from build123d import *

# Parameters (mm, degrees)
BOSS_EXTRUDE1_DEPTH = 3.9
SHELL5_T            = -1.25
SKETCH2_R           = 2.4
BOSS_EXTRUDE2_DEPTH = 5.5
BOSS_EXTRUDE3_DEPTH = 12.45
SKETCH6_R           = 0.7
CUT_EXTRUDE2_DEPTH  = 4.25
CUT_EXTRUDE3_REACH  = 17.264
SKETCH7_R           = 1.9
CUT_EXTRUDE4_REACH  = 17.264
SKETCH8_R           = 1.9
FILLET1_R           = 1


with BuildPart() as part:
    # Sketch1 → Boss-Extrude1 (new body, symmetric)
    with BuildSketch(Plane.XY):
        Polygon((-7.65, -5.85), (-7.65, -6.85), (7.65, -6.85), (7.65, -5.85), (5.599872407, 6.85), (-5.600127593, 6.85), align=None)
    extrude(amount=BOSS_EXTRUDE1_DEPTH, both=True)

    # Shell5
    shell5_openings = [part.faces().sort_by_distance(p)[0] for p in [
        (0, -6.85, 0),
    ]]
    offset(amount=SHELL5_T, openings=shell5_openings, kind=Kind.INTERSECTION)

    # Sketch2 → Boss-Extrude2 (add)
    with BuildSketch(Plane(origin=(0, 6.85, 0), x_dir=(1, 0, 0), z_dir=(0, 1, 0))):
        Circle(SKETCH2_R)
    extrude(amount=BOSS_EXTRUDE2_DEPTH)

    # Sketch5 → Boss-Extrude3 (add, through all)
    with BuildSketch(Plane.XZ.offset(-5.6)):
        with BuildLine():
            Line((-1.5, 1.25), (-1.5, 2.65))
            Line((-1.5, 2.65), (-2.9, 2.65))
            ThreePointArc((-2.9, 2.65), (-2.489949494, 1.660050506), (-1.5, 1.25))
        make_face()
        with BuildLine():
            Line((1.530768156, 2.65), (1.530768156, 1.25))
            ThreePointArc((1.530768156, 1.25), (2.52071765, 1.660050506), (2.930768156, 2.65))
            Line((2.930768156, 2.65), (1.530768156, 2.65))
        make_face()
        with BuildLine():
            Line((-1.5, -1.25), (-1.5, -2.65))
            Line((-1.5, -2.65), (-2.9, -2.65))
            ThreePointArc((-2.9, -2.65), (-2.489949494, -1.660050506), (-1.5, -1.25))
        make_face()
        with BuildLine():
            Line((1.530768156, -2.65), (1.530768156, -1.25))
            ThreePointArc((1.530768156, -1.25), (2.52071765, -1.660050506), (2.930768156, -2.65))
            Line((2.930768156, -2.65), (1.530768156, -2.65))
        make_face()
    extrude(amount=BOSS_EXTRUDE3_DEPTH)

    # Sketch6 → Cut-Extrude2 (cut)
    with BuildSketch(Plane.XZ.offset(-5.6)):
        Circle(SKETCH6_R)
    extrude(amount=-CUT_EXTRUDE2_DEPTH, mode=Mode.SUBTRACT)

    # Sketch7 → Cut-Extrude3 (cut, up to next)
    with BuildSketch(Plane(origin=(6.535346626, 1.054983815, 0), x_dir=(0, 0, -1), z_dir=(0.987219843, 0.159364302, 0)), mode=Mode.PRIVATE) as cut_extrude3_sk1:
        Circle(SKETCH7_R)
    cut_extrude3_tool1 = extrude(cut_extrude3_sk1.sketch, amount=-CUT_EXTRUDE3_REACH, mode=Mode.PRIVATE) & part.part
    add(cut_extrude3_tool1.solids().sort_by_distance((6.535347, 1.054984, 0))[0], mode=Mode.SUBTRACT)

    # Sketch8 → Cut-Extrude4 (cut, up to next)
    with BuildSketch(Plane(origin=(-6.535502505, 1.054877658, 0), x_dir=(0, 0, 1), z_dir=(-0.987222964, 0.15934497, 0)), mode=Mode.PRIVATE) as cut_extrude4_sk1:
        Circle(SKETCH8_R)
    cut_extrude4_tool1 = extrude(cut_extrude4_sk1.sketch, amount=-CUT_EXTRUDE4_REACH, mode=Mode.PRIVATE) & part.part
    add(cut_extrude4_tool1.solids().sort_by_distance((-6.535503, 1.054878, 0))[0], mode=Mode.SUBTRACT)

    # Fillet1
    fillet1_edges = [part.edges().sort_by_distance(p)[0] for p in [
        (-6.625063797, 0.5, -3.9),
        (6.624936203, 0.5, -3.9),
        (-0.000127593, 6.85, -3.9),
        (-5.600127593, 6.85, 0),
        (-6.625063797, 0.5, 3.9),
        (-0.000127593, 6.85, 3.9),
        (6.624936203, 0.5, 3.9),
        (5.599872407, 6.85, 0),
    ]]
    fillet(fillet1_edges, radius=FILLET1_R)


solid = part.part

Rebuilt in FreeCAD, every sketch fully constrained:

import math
import FreeCAD as App
import Part
import Sketcher
from FreeCAD import Vector
Q = App.Units.Quantity


def edges_at(feature, points):
    """Names of the edges that pass closest to the given points."""
    edges = feature.Shape.Edges
    near = lambda p: min(range(len(edges)), key=lambda i: edges[i].distToShape(Part.Vertex(*p))[0])
    return sorted({f"Edge{near(p) + 1}" for p in points})


def faces_at(feature, points):
    """Names of the faces that lie closest to the given points."""
    faces = feature.Shape.Faces
    near = lambda p: min(range(len(faces)), key=lambda i: faces[i].distToShape(Part.Vertex(*p))[0])
    return sorted({f"Face{near(p) + 1}" for p in points})


def add_polygon(sketch, points):
    """Adds a closed chain of lines whose ends are joined by coincident constraints."""
    first, n = sketch.GeometryCount, len(points)
    for a, b in zip(points, points[1:] + points[:1]):
        sketch.addGeometry(Part.LineSegment(App.Vector(*a, 0), App.Vector(*b, 0)), False)
    for i in range(n):
        sketch.addConstraint(Sketcher.Constraint("Coincident", first + i, 2, first + (i + 1) % n, 1))

doc = App.newDocument("Part")
params = doc.addObject("Spreadsheet::Sheet", "Params")
for row, (alias, value) in enumerate([
    ("sketch1_height", "1 mm"),
    ("sketch1_width", "15.3 mm"),
    ("sketch1_width2", "11.2 mm"),
    ("pad1_length", "7.8 mm"),
    ("thickness_wall", "1.25 mm"),
    ("sketch2_diameter", "4.8 mm"),
    ("pad2_length", "5.5 mm"),
    ("sketch3_radius", "1.4 mm"),
    ("pad3_length", "12.45 mm"),
    ("sketch4_diameter", "1.4 mm"),
    ("pocket1_length", "4.25 mm"),
    ("sketch5_diameter", "3.8 mm"),
    ("sketch6_diameter", "3.8 mm"),
    ("fillet_radius", "1 mm"),
], start=1):
    params.set(f"A{row}", alias)
    params.set(f"B{row}", "=" + value)
    params.setAlias(f"B{row}", alias)

body = doc.addObject("PartDesign::Body", "Body")

# Sketch on XY plane
sketch1 = body.newObject("Sketcher::SketchObject", "Sketch")
sketch1.AttachmentSupport = (doc.getObject("XY_Plane"), [""])
sketch1.MapMode = "FlatFace"
add_polygon(sketch1, [(-7.7, -5.8), (-7.7, -6.8), (7.7, -6.8), (7.7, -5.8), (5.6, 6.8), (-5.6, 6.8)])  # lines 0-5
sketch1.addConstraint([
    Sketcher.Constraint("Vertical", 0),
    Sketcher.Constraint("Horizontal", 1),
    Sketcher.Constraint("Vertical", 2),
    Sketcher.Constraint("Horizontal", 4),
    Sketcher.Constraint("Symmetric", 2, 2, 5, 2, -2),
    Sketcher.Constraint("DistanceY", 0, 2, 0, 1, 1.0),
    Sketcher.Constraint("DistanceX", 1, 1, 1, 2, 15.3),
    Sketcher.Constraint("DistanceX", 4, 2, 4, 1, 11.2),
    Sketcher.Constraint("Angle", 3, Q("99.17 deg")),
    Sketcher.Constraint("DistanceY", 2, 2, 3, 2, 12.7),
    Sketcher.Constraint("DistanceY", 0, 2, -1, 1, 6.85),
])
sketch1.setExpression("Constraints[11]", "Params.sketch1_height")
sketch1.setExpression("Constraints[12]", "Params.sketch1_width")
sketch1.setExpression("Constraints[13]", "Params.sketch1_width2")
pad1 = body.newObject("PartDesign::Pad", "Pad")
pad1.Profile = sketch1
pad1.setExpression("Length", "Params.pad1_length")
pad1.Midplane = True
doc.recompute()

thickness = body.newObject("PartDesign::Thickness", "Thickness")
thickness.Base = (pad1, faces_at(pad1, [(0, -6.85, 0)]))
thickness.setExpression("Value", "Params.thickness_wall")
thickness.Reversed = True
thickness.Join = "Intersection"

# Sketch on XZ plane
sketch2 = body.newObject("Sketcher::SketchObject", "Sketch001")
sketch2.AttachmentSupport = (doc.getObject("XZ_Plane"), [""])
sketch2.MapMode = "FlatFace"
sketch2.AttachmentOffset = App.Placement(Vector(0, 0, -6.85), App.Rotation())
sketch2.addGeometry(Part.Circle(Vector(0, 0, 0), Vector(0, 0, 1), 2.4), False)
sketch2.addConstraint([
    Sketcher.Constraint("Coincident", 0, 3, -1, 1),
    Sketcher.Constraint("Diameter", 0, 4.8),
])
sketch2.setExpression("Constraints[1]", "Params.sketch2_diameter")
pad2 = body.newObject("PartDesign::Pad", "Pad001")
pad2.Profile = sketch2
pad2.setExpression("Length", "Params.pad2_length")
pad2.Reversed = True

# Sketch on XZ plane
sketch3 = body.newObject("Sketcher::SketchObject", "Sketch002")
sketch3.AttachmentSupport = (doc.getObject("XZ_Plane"), [""])
sketch3.MapMode = "FlatFace"
sketch3.AttachmentOffset = App.Placement(Vector(0, 0, -5.6), App.Rotation())
sketch3.addGeometry([
    Part.LineSegment(Vector(-1.5, 1.2, 0), Vector(-1.5, 2.6, 0)),  # 0
    Part.LineSegment(Vector(-1.5, 2.6, 0), Vector(-2.9, 2.6, 0)),  # 1
    Part.ArcOfCircle(Part.Circle(Vector(-1.5, 2.6, 0), Vector(0, 0, 1), 1.4), math.radians(180), math.radians(270)),  # 2
    Part.LineSegment(Vector(1.5, 2.6, 0), Vector(1.5, 1.2, 0)),  # 3
    Part.ArcOfCircle(Part.Circle(Vector(1.5, 2.6, 0), Vector(0, 0, 1), 1.4), math.radians(-90), math.radians(0)),  # 4
    Part.LineSegment(Vector(2.9, 2.6, 0), Vector(1.5, 2.6, 0)),  # 5
    Part.LineSegment(Vector(-1.5, -2.6, 0), Vector(-1.5, -1.2, 0)),  # 6
    Part.ArcOfCircle(Part.Circle(Vector(-1.5, -2.6, 0), Vector(0, 0, 1), 1.4), math.radians(90), math.radians(180)),  # 7
    Part.LineSegment(Vector(-2.9, -2.6, 0), Vector(-1.5, -2.6, 0)),  # 8
    Part.LineSegment(Vector(1.5, -1.2, 0), Vector(1.5, -2.6, 0)),  # 9
    Part.LineSegment(Vector(1.5, -2.6, 0), Vector(2.9, -2.6, 0)),  # 10
    Part.ArcOfCircle(Part.Circle(Vector(1.5, -2.6, 0), Vector(0, 0, 1), 1.4), math.radians(0), math.radians(90)),  # 11
], False)
sketch3.addConstraint([
    Sketcher.Constraint("Coincident", 0, 2, 1, 1),
    Sketcher.Constraint("Coincident", 1, 2, 2, 1),
    Sketcher.Constraint("Coincident", 2, 2, 0, 1),
    Sketcher.Constraint("Coincident", 3, 2, 4, 1),
    Sketcher.Constraint("Coincident", 4, 2, 5, 1),
    Sketcher.Constraint("Coincident", 5, 2, 3, 1),
    Sketcher.Constraint("Coincident", 6, 2, 7, 1),
    Sketcher.Constraint("Coincident", 7, 2, 8, 1),
    Sketcher.Constraint("Coincident", 8, 2, 6, 1),
    Sketcher.Constraint("Coincident", 9, 2, 10, 1),
    Sketcher.Constraint("Coincident", 10, 2, 11, 1),
    Sketcher.Constraint("Coincident", 11, 2, 9, 1),
    Sketcher.Constraint("Vertical", 0),
    Sketcher.Constraint("Horizontal", 1),
    Sketcher.Constraint("Vertical", 3),
    Sketcher.Constraint("Horizontal", 5),
    Sketcher.Constraint("Vertical", 6),
    Sketcher.Constraint("Horizontal", 8),
    Sketcher.Constraint("Vertical", 9),
    Sketcher.Constraint("Horizontal", 10),
    Sketcher.Constraint("Coincident", 0, 2, 2, 3),
    Sketcher.Constraint("Coincident", 5, 2, 4, 3),
    Sketcher.Constraint("Coincident", 8, 2, 7, 3),
    Sketcher.Constraint("Coincident", 9, 2, 11, 3),
    Sketcher.Constraint("Equal", 2, 4),
    Sketcher.Constraint("Equal", 4, 7),
    Sketcher.Constraint("Equal", 7, 11),
    Sketcher.Constraint("Symmetric", 2, 3, 7, 3, -1),
    Sketcher.Constraint("Symmetric", 4, 3, 11, 3, -1),
    Sketcher.Constraint("Horizontal", 2, 3, 4, 3),
    Sketcher.Constraint("Radius", 2, 1.4),
    Sketcher.Constraint("DistanceX", 2, 3, -1, 1, 1.5),
    Sketcher.Constraint("DistanceY", 7, 3, 2, 3, 5.3),
    Sketcher.Constraint("DistanceX", -1, 1, 4, 3, 1.530768),
])
sketch3.setExpression("Constraints[30]", "Params.sketch3_radius")
pad3 = body.newObject("PartDesign::Pad", "Pad002")
pad3.Profile = sketch3
pad3.setExpression("Length", "Params.pad3_length")

# Sketch on XZ plane
sketch4 = body.newObject("Sketcher::SketchObject", "Sketch003")
sketch4.AttachmentSupport = (doc.getObject("XZ_Plane"), [""])
sketch4.MapMode = "FlatFace"
sketch4.AttachmentOffset = App.Placement(Vector(0, 0, -5.6), App.Rotation())
sketch4.addGeometry(Part.Circle(Vector(0, 0, 0), Vector(0, 0, 1), 0.7), False)
sketch4.addConstraint([
    Sketcher.Constraint("Coincident", 0, 3, -1, 1),
    Sketcher.Constraint("Diameter", 0, 1.4),
])
sketch4.setExpression("Constraints[1]", "Params.sketch4_diameter")
pocket1 = body.newObject("PartDesign::Pocket", "Pocket")
pocket1.Profile = sketch4
pocket1.setExpression("Length", "Params.pocket1_length")

# Sketch on an angled plane
sketch5 = body.newObject("Sketcher::SketchObject", "Sketch004")
sketch5.Placement = App.Placement(Vector(6.535347, 1.054984, 0), App.Rotation(Vector(0, 0, -1), Vector(-0.159364302, 0.987219843, 0), Vector(0.987219843, 0.159364302, 0), "ZXY"))
sketch5.addGeometry(Part.Circle(Vector(0, 0, 0), Vector(0, 0, 1), 1.9), False)
sketch5.addConstraint([
    Sketcher.Constraint("Coincident", 0, 3, -1, 1),
    Sketcher.Constraint("Diameter", 0, 3.8),
])
sketch5.setExpression("Constraints[1]", "Params.sketch5_diameter")
pocket2 = body.newObject("PartDesign::Pocket", "Pocket001")
pocket2.Profile = sketch5
pocket2.Type = "UpToFirst"

# Sketch on an angled plane
sketch6 = body.newObject("Sketcher::SketchObject", "Sketch005")
sketch6.Placement = App.Placement(Vector(-6.535503, 1.054878, 0), App.Rotation(Vector(0, 0, 1), Vector(0.15934497, 0.987222964, 0), Vector(-0.987222964, 0.15934497, 0), "ZXY"))
sketch6.addGeometry(Part.Circle(Vector(0, 0, 0), Vector(0, 0, 1), 1.9), False)
sketch6.addConstraint([
    Sketcher.Constraint("Coincident", 0, 3, -1, 1),
    Sketcher.Constraint("Diameter", 0, 3.8),
])
sketch6.setExpression("Constraints[1]", "Params.sketch6_diameter")
pocket3 = body.newObject("PartDesign::Pocket", "Pocket002")
pocket3.Profile = sketch6
pocket3.Type = "UpToFirst"
doc.recompute()

fillet = body.newObject("PartDesign::Fillet", "Fillet")
fillet.Base = (pocket3, edges_at(pocket3, [
    (-6.625, 0.5, -3.9),
    (6.625, 0.5, -3.9),
    (0, 6.85, -3.9),
    (-5.6, 6.85, 0),
    (-6.625, 0.5, 3.9),
    (0, 6.85, 3.9),
    (6.625, 0.5, 3.9),
    (5.6, 6.85, 0),
]))
fillet.setExpression("Radius", "Params.fillet_radius")

doc.recompute()
